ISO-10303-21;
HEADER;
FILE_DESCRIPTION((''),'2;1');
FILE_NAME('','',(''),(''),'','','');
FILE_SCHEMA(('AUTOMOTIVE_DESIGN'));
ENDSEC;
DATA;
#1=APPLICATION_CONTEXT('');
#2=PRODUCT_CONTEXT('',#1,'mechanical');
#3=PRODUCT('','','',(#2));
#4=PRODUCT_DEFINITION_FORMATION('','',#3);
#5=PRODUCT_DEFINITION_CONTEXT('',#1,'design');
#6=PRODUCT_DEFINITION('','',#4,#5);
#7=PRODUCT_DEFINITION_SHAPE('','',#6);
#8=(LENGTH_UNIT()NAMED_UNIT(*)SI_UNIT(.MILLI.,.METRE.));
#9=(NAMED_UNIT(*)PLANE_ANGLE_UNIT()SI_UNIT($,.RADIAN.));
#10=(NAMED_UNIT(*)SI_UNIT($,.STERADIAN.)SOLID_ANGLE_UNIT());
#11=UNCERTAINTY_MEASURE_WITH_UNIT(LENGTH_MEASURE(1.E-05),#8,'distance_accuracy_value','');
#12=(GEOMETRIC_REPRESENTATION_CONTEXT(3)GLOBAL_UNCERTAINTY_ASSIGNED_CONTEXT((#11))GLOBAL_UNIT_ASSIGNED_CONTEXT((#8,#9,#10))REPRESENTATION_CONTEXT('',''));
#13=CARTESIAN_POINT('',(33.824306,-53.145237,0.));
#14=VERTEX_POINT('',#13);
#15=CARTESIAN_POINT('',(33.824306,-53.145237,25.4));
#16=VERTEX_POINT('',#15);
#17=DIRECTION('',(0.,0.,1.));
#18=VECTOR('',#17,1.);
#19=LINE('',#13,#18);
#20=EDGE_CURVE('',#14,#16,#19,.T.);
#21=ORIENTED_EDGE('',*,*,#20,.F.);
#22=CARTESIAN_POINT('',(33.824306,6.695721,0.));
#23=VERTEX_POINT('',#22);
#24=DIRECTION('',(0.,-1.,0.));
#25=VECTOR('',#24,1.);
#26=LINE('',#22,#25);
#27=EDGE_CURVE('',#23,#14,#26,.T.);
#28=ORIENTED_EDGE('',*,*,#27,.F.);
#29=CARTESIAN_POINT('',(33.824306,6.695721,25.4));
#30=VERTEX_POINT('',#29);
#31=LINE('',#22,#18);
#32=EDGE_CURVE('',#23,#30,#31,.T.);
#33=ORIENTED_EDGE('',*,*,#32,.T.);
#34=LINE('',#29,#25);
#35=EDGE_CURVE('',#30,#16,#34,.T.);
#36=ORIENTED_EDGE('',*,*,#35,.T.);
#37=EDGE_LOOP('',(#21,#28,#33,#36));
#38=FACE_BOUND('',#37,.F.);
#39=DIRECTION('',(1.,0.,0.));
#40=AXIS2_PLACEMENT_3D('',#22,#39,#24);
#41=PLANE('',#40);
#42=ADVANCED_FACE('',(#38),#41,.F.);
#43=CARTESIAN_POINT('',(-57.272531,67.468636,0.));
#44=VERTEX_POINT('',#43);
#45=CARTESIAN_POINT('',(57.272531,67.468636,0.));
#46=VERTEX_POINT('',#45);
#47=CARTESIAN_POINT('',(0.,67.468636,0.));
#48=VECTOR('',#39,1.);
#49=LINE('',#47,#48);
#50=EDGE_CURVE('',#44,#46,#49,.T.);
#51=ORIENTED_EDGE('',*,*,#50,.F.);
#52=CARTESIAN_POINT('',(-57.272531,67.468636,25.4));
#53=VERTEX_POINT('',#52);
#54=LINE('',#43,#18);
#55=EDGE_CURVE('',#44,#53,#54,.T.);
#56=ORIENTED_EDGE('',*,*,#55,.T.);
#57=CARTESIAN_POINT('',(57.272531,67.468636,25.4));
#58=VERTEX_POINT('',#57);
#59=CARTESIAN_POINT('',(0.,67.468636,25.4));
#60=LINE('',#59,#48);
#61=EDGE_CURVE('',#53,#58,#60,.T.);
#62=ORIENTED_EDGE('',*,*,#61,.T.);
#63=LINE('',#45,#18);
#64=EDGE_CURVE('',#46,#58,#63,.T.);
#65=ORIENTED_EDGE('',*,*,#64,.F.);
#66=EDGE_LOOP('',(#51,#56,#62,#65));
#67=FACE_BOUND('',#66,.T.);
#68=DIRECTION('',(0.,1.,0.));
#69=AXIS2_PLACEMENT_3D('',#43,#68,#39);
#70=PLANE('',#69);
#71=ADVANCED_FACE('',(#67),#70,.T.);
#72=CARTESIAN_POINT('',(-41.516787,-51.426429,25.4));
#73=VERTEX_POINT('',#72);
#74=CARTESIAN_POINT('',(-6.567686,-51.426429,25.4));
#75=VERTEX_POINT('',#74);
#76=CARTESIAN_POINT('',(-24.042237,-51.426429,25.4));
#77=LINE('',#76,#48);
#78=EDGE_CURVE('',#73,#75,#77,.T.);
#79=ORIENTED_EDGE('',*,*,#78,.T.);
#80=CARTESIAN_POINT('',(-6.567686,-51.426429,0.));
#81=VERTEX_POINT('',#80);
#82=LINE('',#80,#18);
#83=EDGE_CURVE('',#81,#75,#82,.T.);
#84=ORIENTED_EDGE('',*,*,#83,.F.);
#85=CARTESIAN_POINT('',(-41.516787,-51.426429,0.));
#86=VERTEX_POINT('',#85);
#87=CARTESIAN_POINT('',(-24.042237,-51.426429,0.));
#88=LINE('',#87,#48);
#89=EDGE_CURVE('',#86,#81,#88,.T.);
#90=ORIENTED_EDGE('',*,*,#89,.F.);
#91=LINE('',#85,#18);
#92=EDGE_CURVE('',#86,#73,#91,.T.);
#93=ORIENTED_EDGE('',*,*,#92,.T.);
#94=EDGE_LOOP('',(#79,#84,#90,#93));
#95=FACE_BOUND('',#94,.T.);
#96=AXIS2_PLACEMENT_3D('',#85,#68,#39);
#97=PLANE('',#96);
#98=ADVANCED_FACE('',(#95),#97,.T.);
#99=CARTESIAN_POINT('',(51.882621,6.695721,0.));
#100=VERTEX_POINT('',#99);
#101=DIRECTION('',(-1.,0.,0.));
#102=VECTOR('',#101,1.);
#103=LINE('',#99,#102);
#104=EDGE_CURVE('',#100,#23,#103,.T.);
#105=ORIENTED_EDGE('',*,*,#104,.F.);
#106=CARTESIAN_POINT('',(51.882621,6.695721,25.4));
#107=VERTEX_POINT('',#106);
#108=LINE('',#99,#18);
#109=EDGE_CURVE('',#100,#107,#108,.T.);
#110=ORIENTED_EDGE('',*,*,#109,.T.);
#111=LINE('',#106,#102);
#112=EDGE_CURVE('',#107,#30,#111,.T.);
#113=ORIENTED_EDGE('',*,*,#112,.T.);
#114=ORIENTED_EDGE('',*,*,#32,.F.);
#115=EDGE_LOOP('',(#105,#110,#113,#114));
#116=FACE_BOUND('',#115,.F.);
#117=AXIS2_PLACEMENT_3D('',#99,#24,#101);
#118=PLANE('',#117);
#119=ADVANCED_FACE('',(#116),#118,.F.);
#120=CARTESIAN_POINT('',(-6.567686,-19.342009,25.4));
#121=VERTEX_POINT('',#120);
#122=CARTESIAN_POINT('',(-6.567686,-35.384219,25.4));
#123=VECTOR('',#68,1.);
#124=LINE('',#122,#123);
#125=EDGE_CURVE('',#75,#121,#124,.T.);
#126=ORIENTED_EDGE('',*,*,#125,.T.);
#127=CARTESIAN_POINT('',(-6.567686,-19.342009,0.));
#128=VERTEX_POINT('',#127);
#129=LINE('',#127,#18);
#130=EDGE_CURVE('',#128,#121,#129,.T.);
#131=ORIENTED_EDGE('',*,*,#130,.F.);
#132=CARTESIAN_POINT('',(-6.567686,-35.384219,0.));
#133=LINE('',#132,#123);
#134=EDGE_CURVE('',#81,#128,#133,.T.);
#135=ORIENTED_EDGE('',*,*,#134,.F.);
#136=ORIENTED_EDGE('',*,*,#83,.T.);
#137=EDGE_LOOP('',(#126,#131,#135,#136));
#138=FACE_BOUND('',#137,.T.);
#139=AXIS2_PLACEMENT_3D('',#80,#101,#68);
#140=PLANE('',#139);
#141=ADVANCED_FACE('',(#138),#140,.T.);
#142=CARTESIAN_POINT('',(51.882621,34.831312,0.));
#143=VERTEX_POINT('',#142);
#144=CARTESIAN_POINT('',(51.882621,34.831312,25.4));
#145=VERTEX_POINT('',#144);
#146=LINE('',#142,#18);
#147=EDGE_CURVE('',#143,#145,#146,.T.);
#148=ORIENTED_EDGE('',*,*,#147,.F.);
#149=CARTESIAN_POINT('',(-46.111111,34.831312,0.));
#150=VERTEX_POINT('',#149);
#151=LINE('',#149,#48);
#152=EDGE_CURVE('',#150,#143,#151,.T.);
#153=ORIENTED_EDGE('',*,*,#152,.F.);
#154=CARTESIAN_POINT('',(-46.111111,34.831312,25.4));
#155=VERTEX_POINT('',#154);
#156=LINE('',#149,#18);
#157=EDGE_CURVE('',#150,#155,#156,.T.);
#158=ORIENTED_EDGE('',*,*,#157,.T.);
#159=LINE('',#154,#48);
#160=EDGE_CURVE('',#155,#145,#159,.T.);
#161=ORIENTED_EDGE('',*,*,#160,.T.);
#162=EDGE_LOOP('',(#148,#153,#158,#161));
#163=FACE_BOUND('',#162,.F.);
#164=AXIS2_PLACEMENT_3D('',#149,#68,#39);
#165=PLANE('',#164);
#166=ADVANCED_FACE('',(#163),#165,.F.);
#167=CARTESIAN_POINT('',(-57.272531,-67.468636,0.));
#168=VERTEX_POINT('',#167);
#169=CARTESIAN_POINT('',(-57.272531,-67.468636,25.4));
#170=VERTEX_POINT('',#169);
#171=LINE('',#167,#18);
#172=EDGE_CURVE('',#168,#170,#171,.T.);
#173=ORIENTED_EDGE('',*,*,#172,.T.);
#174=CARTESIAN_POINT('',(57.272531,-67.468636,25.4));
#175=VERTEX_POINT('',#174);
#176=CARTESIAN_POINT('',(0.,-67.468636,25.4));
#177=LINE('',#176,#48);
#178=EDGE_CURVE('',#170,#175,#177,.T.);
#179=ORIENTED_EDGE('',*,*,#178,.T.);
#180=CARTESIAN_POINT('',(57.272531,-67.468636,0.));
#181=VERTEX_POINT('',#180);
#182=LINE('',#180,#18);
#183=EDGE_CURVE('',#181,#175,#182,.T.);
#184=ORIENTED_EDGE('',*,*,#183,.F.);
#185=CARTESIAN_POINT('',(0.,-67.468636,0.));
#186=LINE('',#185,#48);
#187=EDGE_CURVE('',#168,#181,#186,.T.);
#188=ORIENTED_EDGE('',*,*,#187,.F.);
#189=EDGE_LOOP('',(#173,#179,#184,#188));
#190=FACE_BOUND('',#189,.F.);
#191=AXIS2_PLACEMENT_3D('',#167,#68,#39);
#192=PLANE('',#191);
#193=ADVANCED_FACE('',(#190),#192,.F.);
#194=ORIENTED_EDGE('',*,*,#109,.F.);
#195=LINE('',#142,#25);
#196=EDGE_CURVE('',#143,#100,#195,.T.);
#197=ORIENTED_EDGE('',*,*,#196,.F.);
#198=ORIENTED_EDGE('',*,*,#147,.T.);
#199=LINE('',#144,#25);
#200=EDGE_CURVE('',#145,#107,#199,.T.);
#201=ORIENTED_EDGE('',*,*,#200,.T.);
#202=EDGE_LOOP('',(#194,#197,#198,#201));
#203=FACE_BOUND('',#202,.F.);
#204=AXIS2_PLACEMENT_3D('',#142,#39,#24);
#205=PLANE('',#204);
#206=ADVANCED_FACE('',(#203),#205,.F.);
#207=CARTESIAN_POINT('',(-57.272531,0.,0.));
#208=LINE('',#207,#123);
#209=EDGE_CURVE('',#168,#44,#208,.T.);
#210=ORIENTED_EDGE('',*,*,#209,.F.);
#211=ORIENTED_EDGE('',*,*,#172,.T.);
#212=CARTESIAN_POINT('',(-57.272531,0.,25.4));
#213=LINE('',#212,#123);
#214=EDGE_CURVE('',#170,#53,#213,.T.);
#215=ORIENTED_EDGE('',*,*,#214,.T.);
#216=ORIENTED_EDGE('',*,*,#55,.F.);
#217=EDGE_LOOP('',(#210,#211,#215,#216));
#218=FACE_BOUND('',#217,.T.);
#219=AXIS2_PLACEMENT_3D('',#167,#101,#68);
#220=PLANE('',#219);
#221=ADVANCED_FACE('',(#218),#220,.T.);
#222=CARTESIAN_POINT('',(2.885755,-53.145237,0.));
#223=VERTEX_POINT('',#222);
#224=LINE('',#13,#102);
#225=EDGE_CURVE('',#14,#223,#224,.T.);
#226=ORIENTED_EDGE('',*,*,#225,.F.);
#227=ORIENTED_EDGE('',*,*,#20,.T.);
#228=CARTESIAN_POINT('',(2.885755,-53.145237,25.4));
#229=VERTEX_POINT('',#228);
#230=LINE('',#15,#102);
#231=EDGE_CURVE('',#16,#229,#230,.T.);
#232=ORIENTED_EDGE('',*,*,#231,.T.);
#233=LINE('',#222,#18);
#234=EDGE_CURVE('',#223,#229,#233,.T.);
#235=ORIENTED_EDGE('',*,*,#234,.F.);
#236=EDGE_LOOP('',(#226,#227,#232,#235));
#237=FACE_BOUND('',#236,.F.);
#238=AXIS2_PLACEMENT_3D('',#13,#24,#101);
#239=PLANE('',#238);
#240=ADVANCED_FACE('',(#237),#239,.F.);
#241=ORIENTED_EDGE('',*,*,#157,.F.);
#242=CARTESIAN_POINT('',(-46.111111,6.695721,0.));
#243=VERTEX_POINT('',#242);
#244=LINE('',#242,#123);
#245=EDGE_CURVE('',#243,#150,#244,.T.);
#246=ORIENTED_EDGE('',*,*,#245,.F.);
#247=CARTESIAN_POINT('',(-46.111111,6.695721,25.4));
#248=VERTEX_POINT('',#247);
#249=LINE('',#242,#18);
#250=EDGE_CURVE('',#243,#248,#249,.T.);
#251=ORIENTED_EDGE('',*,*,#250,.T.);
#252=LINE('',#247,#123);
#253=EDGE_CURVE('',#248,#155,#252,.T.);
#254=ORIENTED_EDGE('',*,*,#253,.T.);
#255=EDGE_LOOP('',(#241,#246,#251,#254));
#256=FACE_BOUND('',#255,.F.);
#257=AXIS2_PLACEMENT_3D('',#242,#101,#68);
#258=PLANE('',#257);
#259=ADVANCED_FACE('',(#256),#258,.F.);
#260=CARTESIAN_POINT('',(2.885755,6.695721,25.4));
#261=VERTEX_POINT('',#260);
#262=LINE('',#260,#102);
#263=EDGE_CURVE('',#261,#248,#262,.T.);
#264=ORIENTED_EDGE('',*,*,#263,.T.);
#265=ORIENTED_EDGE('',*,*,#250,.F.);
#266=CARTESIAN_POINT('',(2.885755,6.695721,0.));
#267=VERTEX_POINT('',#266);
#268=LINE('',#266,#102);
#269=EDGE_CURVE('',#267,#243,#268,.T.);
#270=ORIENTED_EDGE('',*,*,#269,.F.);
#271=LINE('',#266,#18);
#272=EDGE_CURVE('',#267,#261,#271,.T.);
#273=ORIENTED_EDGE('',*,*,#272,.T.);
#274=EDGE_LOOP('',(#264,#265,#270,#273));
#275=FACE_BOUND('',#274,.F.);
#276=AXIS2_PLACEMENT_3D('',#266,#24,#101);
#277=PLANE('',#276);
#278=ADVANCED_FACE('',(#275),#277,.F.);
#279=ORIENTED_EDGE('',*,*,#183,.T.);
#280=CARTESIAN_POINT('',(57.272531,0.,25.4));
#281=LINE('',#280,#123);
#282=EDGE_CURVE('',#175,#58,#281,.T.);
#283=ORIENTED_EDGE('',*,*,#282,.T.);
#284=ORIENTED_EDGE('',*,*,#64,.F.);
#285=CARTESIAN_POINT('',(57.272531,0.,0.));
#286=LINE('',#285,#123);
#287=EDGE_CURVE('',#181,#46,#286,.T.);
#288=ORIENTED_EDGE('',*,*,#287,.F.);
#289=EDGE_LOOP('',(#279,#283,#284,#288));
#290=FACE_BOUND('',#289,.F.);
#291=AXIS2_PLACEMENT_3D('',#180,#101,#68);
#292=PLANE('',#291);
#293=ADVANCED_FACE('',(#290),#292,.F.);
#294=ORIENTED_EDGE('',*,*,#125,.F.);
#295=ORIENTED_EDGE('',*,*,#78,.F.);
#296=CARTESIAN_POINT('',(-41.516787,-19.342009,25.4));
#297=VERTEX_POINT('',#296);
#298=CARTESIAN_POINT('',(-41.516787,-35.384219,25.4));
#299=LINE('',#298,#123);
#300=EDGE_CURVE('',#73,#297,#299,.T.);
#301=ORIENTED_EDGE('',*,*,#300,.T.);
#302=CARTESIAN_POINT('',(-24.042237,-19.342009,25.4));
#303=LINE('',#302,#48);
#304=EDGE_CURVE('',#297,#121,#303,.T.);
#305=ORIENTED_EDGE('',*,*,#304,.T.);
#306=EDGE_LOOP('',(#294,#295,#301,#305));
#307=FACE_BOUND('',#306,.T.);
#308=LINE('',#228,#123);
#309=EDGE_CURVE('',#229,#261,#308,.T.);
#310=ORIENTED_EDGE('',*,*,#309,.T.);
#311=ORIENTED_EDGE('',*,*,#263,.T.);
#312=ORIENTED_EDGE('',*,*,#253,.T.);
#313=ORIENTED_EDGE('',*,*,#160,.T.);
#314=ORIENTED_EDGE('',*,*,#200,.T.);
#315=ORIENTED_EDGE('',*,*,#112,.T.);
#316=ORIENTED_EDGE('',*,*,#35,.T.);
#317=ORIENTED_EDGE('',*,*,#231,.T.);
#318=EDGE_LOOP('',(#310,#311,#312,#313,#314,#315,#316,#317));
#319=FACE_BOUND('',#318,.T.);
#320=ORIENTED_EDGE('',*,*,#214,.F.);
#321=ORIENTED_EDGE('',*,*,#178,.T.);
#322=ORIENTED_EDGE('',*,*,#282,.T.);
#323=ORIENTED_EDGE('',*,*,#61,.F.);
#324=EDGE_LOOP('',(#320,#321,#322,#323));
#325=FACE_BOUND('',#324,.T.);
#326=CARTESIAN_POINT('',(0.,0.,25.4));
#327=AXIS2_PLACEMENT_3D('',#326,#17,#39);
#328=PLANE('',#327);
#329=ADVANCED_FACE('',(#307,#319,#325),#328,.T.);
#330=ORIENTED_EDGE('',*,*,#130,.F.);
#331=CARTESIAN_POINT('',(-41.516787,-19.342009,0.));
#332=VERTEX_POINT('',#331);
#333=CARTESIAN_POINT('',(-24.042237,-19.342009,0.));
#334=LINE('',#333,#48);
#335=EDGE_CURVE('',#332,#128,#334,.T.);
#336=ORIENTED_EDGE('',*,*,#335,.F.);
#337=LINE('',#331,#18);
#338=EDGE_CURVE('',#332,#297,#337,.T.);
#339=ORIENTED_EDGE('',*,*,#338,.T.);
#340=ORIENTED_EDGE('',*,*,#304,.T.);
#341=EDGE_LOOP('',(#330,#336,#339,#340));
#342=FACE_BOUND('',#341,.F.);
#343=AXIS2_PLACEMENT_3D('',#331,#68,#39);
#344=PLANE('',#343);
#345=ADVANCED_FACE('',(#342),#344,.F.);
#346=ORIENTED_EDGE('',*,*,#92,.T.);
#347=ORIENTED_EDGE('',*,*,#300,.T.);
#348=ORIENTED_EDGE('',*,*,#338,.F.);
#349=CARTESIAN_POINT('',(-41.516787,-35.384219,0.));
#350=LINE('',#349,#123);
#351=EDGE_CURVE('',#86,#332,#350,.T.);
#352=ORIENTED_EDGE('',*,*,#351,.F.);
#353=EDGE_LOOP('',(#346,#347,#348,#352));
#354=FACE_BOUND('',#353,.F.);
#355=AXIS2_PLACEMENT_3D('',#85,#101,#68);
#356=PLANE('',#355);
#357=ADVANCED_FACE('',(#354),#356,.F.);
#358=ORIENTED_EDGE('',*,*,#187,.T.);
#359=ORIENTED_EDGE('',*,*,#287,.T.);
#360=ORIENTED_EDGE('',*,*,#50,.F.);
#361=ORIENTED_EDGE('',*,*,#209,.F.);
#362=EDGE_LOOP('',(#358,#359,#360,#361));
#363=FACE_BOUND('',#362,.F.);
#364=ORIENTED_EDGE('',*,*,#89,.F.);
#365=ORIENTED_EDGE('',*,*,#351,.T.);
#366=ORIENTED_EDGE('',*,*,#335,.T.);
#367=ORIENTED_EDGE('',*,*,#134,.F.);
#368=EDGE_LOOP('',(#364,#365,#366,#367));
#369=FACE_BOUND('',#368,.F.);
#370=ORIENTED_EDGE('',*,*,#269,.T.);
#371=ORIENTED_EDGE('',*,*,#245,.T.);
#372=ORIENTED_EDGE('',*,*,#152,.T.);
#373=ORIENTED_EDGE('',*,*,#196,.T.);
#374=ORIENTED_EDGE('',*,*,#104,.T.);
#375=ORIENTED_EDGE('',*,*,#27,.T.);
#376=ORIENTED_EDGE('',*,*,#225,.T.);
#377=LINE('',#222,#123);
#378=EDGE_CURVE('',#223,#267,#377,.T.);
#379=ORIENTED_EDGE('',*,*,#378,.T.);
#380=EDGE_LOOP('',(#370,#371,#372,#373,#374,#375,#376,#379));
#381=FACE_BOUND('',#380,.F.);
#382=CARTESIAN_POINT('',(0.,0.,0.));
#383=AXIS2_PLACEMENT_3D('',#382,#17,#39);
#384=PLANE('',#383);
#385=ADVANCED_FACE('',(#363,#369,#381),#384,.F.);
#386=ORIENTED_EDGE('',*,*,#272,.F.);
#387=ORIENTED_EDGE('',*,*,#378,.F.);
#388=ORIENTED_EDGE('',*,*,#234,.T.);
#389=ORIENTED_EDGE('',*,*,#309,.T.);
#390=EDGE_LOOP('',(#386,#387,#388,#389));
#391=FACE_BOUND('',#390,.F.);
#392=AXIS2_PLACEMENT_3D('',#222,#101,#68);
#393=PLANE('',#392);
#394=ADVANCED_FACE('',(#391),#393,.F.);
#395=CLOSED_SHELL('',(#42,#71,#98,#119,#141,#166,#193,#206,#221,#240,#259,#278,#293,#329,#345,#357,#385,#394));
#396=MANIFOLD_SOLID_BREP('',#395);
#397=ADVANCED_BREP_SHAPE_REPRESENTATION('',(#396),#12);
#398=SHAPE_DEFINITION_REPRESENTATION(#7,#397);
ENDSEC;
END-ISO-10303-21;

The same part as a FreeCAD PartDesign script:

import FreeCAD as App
import Part
import Sketcher
Q = App.Units.Quantity


def add_polygon(sketch, points):
    """Adds a closed chain of lines whose ends are joined by coincident constraints."""
    first, n = sketch.GeometryCount, len(points)
    for a, b in zip(points, points[1:] + points[:1]):
        sketch.addGeometry(Part.LineSegment(App.Vector(*a, 0), App.Vector(*b, 0)), False)
    for i in range(n):
        sketch.addConstraint(Sketcher.Constraint("Coincident", first + i, 2, first + (i + 1) % n, 1))

doc = App.newDocument("Part")
body = doc.addObject("PartDesign::Body", "Body")

sketch1 = doc.addObject("Sketcher::SketchObject", "Sketch")
body.addObject(sketch1)
sketch1.AttachmentSupport = (doc.XY_Plane, [""])
sketch1.MapMode = "FlatFace"
add_polygon(sketch1, [(-57, 67), (-57, -67), (57, -67), (57, 67)])
add_polygon(sketch1, [(-7, -51), (-42, -51), (-42, -19), (-7, -19)])
add_polygon(sketch1, [(34, 7), (34, -53), (3, -53), (3, 7), (-46, 7), (-46, 35), (52, 35), (52, 7)])
sketch1.addConstraint([
    Sketcher.Constraint("Vertical", 0),
    Sketcher.Constraint("Horizontal", 1),
    Sketcher.Constraint("Vertical", 2),
    Sketcher.Constraint("Horizontal", 3),
    Sketcher.Constraint("Horizontal", 4),
    Sketcher.Constraint("Vertical", 5),
    Sketcher.Constraint("Horizontal", 6),
    Sketcher.Constraint("Vertical", 7),
    Sketcher.Constraint("Vertical", 8),
    Sketcher.Constraint("Horizontal", 9),
    Sketcher.Constraint("Vertical", 10),
    Sketcher.Constraint("Horizontal", 11),
    Sketcher.Constraint("Vertical", 12),
    Sketcher.Constraint("Horizontal", 13),
    Sketcher.Constraint("Vertical", 14),
    Sketcher.Constraint("Horizontal", 15),
    Sketcher.Constraint("Symmetric", 0, 2, 2, 2, -1, 1),
    Sketcher.Constraint("Horizontal", 11, 2, 14, 2),
    Sketcher.Constraint("DistanceX", 4, 2, 4, 1, 34.949101),
    Sketcher.Constraint("DistanceX", 1, 1, 1, 2, 114.545062),
    Sketcher.Constraint("DistanceX", 9, 2, 9, 1, 30.938551),
    Sketcher.Constraint("DistanceX", 13, 1, 13, 2, 97.993732),
    Sketcher.Constraint("DistanceY", 0, 2, 0, 1, 134.937272),
    Sketcher.Constraint("DistanceY", 5, 1, 5, 2, 32.08442),
    Sketcher.Constraint("DistanceY", 12, 1, 12, 2, 28.135591),
    Sketcher.Constraint("DistanceY", 1, 2, 8, 2, 14.323399),
    Sketcher.Constraint("DistanceX", 11, 2, 11, 1, 48.996866),
    Sketcher.Constraint("DistanceY", 8, 2, 8, 1, 59.840958),
    Sketcher.Constraint("DistanceY", 4, 2, -1, 1, 51.426429),
    Sketcher.Constraint("DistanceX", 11, 2, -1, 1, 46.111111),
    Sketcher.Constraint("DistanceX", 4, 2, 1, 2, 98.789319),
])
pad1 = doc.addObject("PartDesign::Pad", "Pad")
body.addObject(pad1)
pad1.Profile = sketch1
pad1.Length = Q("1 in")

doc.recompute()
